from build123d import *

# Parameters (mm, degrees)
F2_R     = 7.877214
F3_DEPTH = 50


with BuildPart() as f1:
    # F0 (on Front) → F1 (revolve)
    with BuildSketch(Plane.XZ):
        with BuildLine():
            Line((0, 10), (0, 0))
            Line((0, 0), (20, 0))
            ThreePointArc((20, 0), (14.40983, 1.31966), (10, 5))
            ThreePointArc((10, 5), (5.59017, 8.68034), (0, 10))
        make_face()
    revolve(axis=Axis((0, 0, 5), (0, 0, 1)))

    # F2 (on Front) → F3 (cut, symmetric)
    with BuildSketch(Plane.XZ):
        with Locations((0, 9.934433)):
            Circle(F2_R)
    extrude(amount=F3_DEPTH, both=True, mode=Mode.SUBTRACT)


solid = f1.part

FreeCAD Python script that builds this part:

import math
import FreeCAD as App
import Part
import Sketcher

V = App.Vector
Q = App.Units.Quantity

doc = App.newDocument("Part")
body = doc.addObject("PartDesign::Body", "Body")

# Sketch on XZ plane
sketch1 = body.newObject("Sketcher::SketchObject", "Sketch")
sketch1.AttachmentSupport = (doc.getObject("XZ_Plane"), [""])
sketch1.MapMode = "FlatFace"
sketch1.addGeometry([
    Part.LineSegment(V(0, 10, 0), V(0, 0, 0)),
    Part.LineSegment(V(0, 0, 0), V(20, 0, 0)),
    Part.ArcOfCircle(Part.Circle(V(20, 12, 0), V(0, 0, 1), 12), math.radians(-143), math.radians(-90)),
    Part.ArcOfCircle(Part.Circle(V(0, -2, 0), V(0, 0, 1), 12), math.radians(37), math.radians(90)),
], False)
sketch1.addConstraint([
    Sketcher.Constraint("Coincident", 0, 2, 1, 1),
    Sketcher.Constraint("Tangent", 1, 2, 2, 2),
    Sketcher.Constraint("Tangent", 2, 1, 3, 1),
    Sketcher.Constraint("Coincident", 3, 2, 0, 1),
    Sketcher.Constraint("Vertical", 0),
    Sketcher.Constraint("Horizontal", 1),
    Sketcher.Constraint("Coincident", 0, 2, -1, 1),
    Sketcher.Constraint("Equal", 2, 3),
    Sketcher.Constraint("PointOnObject", 3, 3, -2),
    Sketcher.Constraint("Radius", 2, Q("12.499999 mm")),
    Sketcher.Constraint("DistanceX", 1, 1, 1, 2, Q("20 mm")),
])
revolution = body.newObject("PartDesign::Revolution", "Revolution")
revolution.Profile = sketch1
revolution.ReferenceAxis = (sketch1, ["V_Axis"])
revolution.Angle = 360

# Sketch on XZ plane
sketch2 = body.newObject("Sketcher::SketchObject", "Sketch001")
sketch2.AttachmentSupport = (doc.getObject("XZ_Plane"), [""])
sketch2.MapMode = "FlatFace"
sketch2.addGeometry(Part.Circle(V(0, 10, 0), V(0, 0, 1), 8), False)
sketch2.addConstraint([
    Sketcher.Constraint("PointOnObject", 0, 3, -2),
    Sketcher.Constraint("Diameter", 0, Q("15.754428 mm")),
    Sketcher.Constraint("DistanceY", -1, 1, 0, 3, Q("9.934433 mm")),
])
pocket1 = body.newObject("PartDesign::Pocket", "Pocket")
pocket1.Profile = sketch2
pocket1.Length = 100
pocket1.Midplane = True

doc.recompute()
